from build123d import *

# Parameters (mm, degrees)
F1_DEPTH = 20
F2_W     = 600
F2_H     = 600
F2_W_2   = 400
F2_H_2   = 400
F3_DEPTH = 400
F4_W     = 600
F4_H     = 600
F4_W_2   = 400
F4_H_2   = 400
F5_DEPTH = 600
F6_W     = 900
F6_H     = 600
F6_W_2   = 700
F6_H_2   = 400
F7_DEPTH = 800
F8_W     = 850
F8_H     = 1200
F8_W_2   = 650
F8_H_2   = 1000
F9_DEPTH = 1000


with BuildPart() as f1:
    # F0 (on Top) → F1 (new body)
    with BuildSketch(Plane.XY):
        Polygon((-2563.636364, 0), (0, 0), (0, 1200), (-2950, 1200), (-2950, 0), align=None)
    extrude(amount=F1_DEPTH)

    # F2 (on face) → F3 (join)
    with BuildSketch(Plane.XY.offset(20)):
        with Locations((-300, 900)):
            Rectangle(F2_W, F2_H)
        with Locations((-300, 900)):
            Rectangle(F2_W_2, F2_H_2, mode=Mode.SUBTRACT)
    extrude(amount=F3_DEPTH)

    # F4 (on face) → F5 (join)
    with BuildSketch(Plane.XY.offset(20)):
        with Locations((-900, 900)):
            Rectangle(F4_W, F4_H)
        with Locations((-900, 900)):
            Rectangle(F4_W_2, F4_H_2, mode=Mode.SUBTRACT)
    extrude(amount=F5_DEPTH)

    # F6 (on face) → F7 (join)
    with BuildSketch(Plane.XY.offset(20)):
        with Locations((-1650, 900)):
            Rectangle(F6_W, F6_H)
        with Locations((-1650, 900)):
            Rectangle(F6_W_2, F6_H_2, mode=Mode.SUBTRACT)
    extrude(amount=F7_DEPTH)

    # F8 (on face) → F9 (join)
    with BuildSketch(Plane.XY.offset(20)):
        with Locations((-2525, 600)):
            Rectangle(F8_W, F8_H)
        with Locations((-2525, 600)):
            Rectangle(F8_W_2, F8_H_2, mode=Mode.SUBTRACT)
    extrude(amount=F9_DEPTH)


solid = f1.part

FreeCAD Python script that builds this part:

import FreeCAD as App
import Part
import Sketcher

V = App.Vector

doc = App.newDocument("Part")
params = doc.addObject("Spreadsheet::Sheet", "Params")
for row, (alias, value) in enumerate([
    ("sketch1_width", "2950 mm"),
    ("sketch1_height", "1200 mm"),
    ("pad1_length", "20 mm"),
    ("sketch2_width", "600 mm"),
    ("sketch2_width2", "400 mm"),
    ("pad2_length", "400 mm"),
    ("sketch3_width", "600 mm"),
    ("sketch3_width2", "400 mm"),
    ("pad3_length", "600 mm"),
    ("sketch4_width", "900 mm"),
    ("sketch4_width2", "700 mm"),
    ("sketch4_height", "600 mm"),
    ("sketch4_height2", "400 mm"),
    ("pad4_length", "800 mm"),
    ("sketch5_width", "850 mm"),
    ("sketch5_width2", "650 mm"),
    ("sketch5_height", "1200 mm"),
    ("sketch5_height2", "1000 mm"),
    ("pad5_length", "1000 mm"),
], start=1):
    params.set(f"A{row}", alias)
    params.set(f"B{row}", "=" + value)
    params.setAlias(f"B{row}", alias)

body = doc.addObject("PartDesign::Body", "Body")

# Sketch on XY plane
sketch1 = body.newObject("Sketcher::SketchObject", "Sketch")
sketch1.AttachmentSupport = (doc.getObject("XY_Plane"), [""])
sketch1.MapMode = "FlatFace"
sketch1.addGeometry(Part.LineSegment(V(0, 0, 0), V(0, 1200, 0)), False)
sketch1.addGeometry(Part.LineSegment(V(0, 1200, 0), V(-2950, 1200, 0)), False)
sketch1.addGeometry(Part.LineSegment(V(-2950, 1200, 0), V(-2950, 0, 0)), False)
sketch1.addGeometry(Part.LineSegment(V(-2950, 0, 0), V(0, 0, 0)), False)
sketch1.addConstraint(Sketcher.Constraint("Coincident", 0, 2, 1, 1))
sketch1.addConstraint(Sketcher.Constraint("Coincident", 1, 2, 2, 1))
sketch1.addConstraint(Sketcher.Constraint("Coincident", 2, 2, 3, 1))
sketch1.addConstraint(Sketcher.Constraint("Coincident", 3, 2, 0, 1))
sketch1.addConstraint(Sketcher.Constraint("Vertical", 0))
sketch1.addConstraint(Sketcher.Constraint("Horizontal", 1))
sketch1.addConstraint(Sketcher.Constraint("Vertical", 2))
sketch1.addConstraint(Sketcher.Constraint("Horizontal", 3))
sketch1.addConstraint(Sketcher.Constraint("Coincident", 3, 2, -1, 1))
sketch1.addConstraint(Sketcher.Constraint("DistanceX", 1, 2, 1, 1, 2950.0))
sketch1.addConstraint(Sketcher.Constraint("DistanceY", 0, 1, 0, 2, 1200.0))
sketch1.setExpression("Constraints[9]", "Params.sketch1_width")
sketch1.setExpression("Constraints[10]", "Params.sketch1_height")
pad1 = body.newObject("PartDesign::Pad", "Pad")
pad1.Profile = sketch1
pad1.setExpression("Length", "Params.pad1_length")

# Sketch on XY plane
sketch2 = body.newObject("Sketcher::SketchObject", "Sketch001")
sketch2.AttachmentSupport = (doc.getObject("XY_Plane"), [""])
sketch2.MapMode = "FlatFace"
sketch2.AttachmentOffset = App.Placement(V(0, 0, 20), App.Rotation())
sketch2.addGeometry(Part.LineSegment(V(-600, 1200, 0), V(-600, 600, 0)), False)
sketch2.addGeometry(Part.LineSegment(V(-600, 600, 0), V(0, 600, 0)), False)
sketch2.addGeometry(Part.LineSegment(V(0, 600, 0), V(0, 1200, 0)), False)
sketch2.addGeometry(Part.LineSegment(V(0, 1200, 0), V(-600, 1200, 0)), False)
sketch2.addGeometry(Part.LineSegment(V(-100, 700, 0), V(-500, 700, 0)), False)
sketch2.addGeometry(Part.LineSegment(V(-500, 700, 0), V(-500, 1100, 0)), False)
sketch2.addGeometry(Part.LineSegment(V(-500, 1100, 0), V(-100, 1100, 0)), False)
sketch2.addGeometry(Part.LineSegment(V(-100, 1100, 0), V(-100, 700, 0)), False)
sketch2.addConstraint(Sketcher.Constraint("Coincident", 0, 2, 1, 1))
sketch2.addConstraint(Sketcher.Constraint("Coincident", 1, 2, 2, 1))
sketch2.addConstraint(Sketcher.Constraint("Coincident", 2, 2, 3, 1))
sketch2.addConstraint(Sketcher.Constraint("Coincident", 3, 2, 0, 1))
sketch2.addConstraint(Sketcher.Constraint("Coincident", 4, 2, 5, 1))
sketch2.addConstraint(Sketcher.Constraint("Coincident", 5, 2, 6, 1))
sketch2.addConstraint(Sketcher.Constraint("Coincident", 6, 2, 7, 1))
sketch2.addConstraint(Sketcher.Constraint("Coincident", 7, 2, 4, 1))
sketch2.addConstraint(Sketcher.Constraint("Vertical", 0))
sketch2.addConstraint(Sketcher.Constraint("Horizontal", 1))
sketch2.addConstraint(Sketcher.Constraint("Vertical", 2))
sketch2.addConstraint(Sketcher.Constraint("Horizontal", 3))
sketch2.addConstraint(Sketcher.Constraint("Horizontal", 4))
sketch2.addConstraint(Sketcher.Constraint("Vertical", 5))
sketch2.addConstraint(Sketcher.Constraint("Horizontal", 6))
sketch2.addConstraint(Sketcher.Constraint("Vertical", 7))
sketch2.addConstraint(Sketcher.Constraint("PointOnObject", 1, 2, -2))
sketch2.addConstraint(Sketcher.Constraint("Equal", 3, 0))
sketch2.addConstraint(Sketcher.Constraint("Equal", 6, 5))
sketch2.addConstraint(Sketcher.Constraint("DistanceX", 1, 1, 1, 2, 600.0))
sketch2.addConstraint(Sketcher.Constraint("DistanceX", 4, 2, 4, 1, 400.0))
sketch2.addConstraint(Sketcher.Constraint("DistanceY", -1, 1, 0, 2, 600.0))
sketch2.addConstraint(Sketcher.Constraint("DistanceX", 4, 2, -1, 1, 500.0))
sketch2.addConstraint(Sketcher.Constraint("DistanceY", -1, 1, 4, 2, 700.0))
sketch2.setExpression("Constraints[19]", "Params.sketch2_width")
sketch2.setExpression("Constraints[20]", "Params.sketch2_width2")
pad2 = body.newObject("PartDesign::Pad", "Pad001")
pad2.Profile = sketch2
pad2.setExpression("Length", "Params.pad2_length")

# Sketch on XY plane
sketch3 = body.newObject("Sketcher::SketchObject", "Sketch002")
sketch3.AttachmentSupport = (doc.getObject("XY_Plane"), [""])
sketch3.MapMode = "FlatFace"
sketch3.AttachmentOffset = App.Placement(V(0, 0, 20), App.Rotation())
sketch3.addGeometry(Part.LineSegment(V(-1200, 1200, 0), V(-1200, 600, 0)), False)
sketch3.addGeometry(Part.LineSegment(V(-1200, 600, 0), V(-600, 600, 0)), False)
sketch3.addGeometry(Part.LineSegment(V(-600, 600, 0), V(-600, 1200, 0)), False)
sketch3.addGeometry(Part.LineSegment(V(-600, 1200, 0), V(-1200, 1200, 0)), False)
sketch3.addGeometry(Part.LineSegment(V(-700, 700, 0), V(-1100, 700, 0)), False)
sketch3.addGeometry(Part.LineSegment(V(-1100, 700, 0), V(-1100, 1100, 0)), False)
sketch3.addGeometry(Part.LineSegment(V(-1100, 1100, 0), V(-700, 1100, 0)), False)
sketch3.addGeometry(Part.LineSegment(V(-700, 1100, 0), V(-700, 700, 0)), False)
sketch3.addConstraint(Sketcher.Constraint("Coincident", 0, 2, 1, 1))
sketch3.addConstraint(Sketcher.Constraint("Coincident", 1, 2, 2, 1))
sketch3.addConstraint(Sketcher.Constraint("Coincident", 2, 2, 3, 1))
sketch3.addConstraint(Sketcher.Constraint("Coincident", 3, 2, 0, 1))
sketch3.addConstraint(Sketcher.Constraint("Coincident", 4, 2, 5, 1))
sketch3.addConstraint(Sketcher.Constraint("Coincident", 5, 2, 6, 1))
sketch3.addConstraint(Sketcher.Constraint("Coincident", 6, 2, 7, 1))
sketch3.addConstraint(Sketcher.Constraint("Coincident", 7, 2, 4, 1))
sketch3.addConstraint(Sketcher.Constraint("Vertical", 0))
sketch3.addConstraint(Sketcher.Constraint("Horizontal", 1))
sketch3.addConstraint(Sketcher.Constraint("Vertical", 2))
sketch3.addConstraint(Sketcher.Constraint("Horizontal", 3))
sketch3.addConstraint(Sketcher.Constraint("Horizontal", 4))
sketch3.addConstraint(Sketcher.Constraint("Vertical", 5))
sketch3.addConstraint(Sketcher.Constraint("Horizontal", 6))
sketch3.addConstraint(Sketcher.Constraint("Vertical", 7))
sketch3.addConstraint(Sketcher.Constraint("Equal", 3, 0))
sketch3.addConstraint(Sketcher.Constraint("Equal", 6, 5))
sketch3.addConstraint(Sketcher.Constraint("DistanceX", 1, 1, 1, 2, 600.0))
sketch3.addConstraint(Sketcher.Constraint("DistanceX", 4, 2, 4, 1, 400.0))
sketch3.addConstraint(Sketcher.Constraint("DistanceX", 0, 2, -1, 1, 1200.0))
sketch3.addConstraint(Sketcher.Constraint("DistanceY", -1, 1, 0, 2, 600.0))
sketch3.addConstraint(Sketcher.Constraint("DistanceX", 4, 2, -1, 1, 1100.0))
sketch3.addConstraint(Sketcher.Constraint("DistanceY", -1, 1, 4, 2, 700.0))
sketch3.setExpression("Constraints[18]", "Params.sketch3_width")
sketch3.setExpression("Constraints[19]", "Params.sketch3_width2")
pad3 = body.newObject("PartDesign::Pad", "Pad002")
pad3.Profile = sketch3
pad3.setExpression("Length", "Params.pad3_length")

# Sketch on XY plane
sketch4 = body.newObject("Sketcher::SketchObject", "Sketch003")
sketch4.AttachmentSupport = (doc.getObject("XY_Plane"), [""])
sketch4.MapMode = "FlatFace"
sketch4.AttachmentOffset = App.Placement(V(0, 0, 20), App.Rotation())
sketch4.addGeometry(Part.LineSegment(V(-2100, 1200, 0), V(-2100, 600, 0)), False)
sketch4.addGeometry(Part.LineSegment(V(-2100, 600, 0), V(-1200, 600, 0)), False)
sketch4.addGeometry(Part.LineSegment(V(-1200, 600, 0), V(-1200, 1200, 0)), False)
sketch4.addGeometry(Part.LineSegment(V(-1200, 1200, 0), V(-2100, 1200, 0)), False)
sketch4.addGeometry(Part.LineSegment(V(-1300, 700, 0), V(-2000, 700, 0)), False)
sketch4.addGeometry(Part.LineSegment(V(-2000, 700, 0), V(-2000, 1100, 0)), False)
sketch4.addGeometry(Part.LineSegment(V(-2000, 1100, 0), V(-1300, 1100, 0)), False)
sketch4.addGeometry(Part.LineSegment(V(-1300, 1100, 0), V(-1300, 700, 0)), False)
sketch4.addConstraint(Sketcher.Constraint("Coincident", 0, 2, 1, 1))
sketch4.addConstraint(Sketcher.Constraint("Coincident", 1, 2, 2, 1))
sketch4.addConstraint(Sketcher.Constraint("Coincident", 2, 2, 3, 1))
sketch4.addConstraint(Sketcher.Constraint("Coincident", 3, 2, 0, 1))
sketch4.addConstraint(Sketcher.Constraint("Coincident", 4, 2, 5, 1))
sketch4.addConstraint(Sketcher.Constraint("Coincident", 5, 2, 6, 1))
sketch4.addConstraint(Sketcher.Constraint("Coincident", 6, 2, 7, 1))
sketch4.addConstraint(Sketcher.Constraint("Coincident", 7, 2, 4, 1))
sketch4.addConstraint(Sketcher.Constraint("Vertical", 0))
sketch4.addConstraint(Sketcher.Constraint("Horizontal", 1))
sketch4.addConstraint(Sketcher.Constraint("Vertical", 2))
sketch4.addConstraint(Sketcher.Constraint("Horizontal", 3))
sketch4.addConstraint(Sketcher.Constraint("Horizontal", 4))
sketch4.addConstraint(Sketcher.Constraint("Vertical", 5))
sketch4.addConstraint(Sketcher.Constraint("Horizontal", 6))
sketch4.addConstraint(Sketcher.Constraint("Vertical", 7))
sketch4.addConstraint(Sketcher.Constraint("DistanceX", 1, 1, 1, 2, 900.0))
sketch4.addConstraint(Sketcher.Constraint("DistanceX", 4, 2, 4, 1, 700.0))
sketch4.addConstraint(Sketcher.Constraint("DistanceY", 0, 2, 0, 1, 600.0))
sketch4.addConstraint(Sketcher.Constraint("DistanceY", 5, 1, 5, 2, 400.0))
sketch4.addConstraint(Sketcher.Constraint("DistanceX", 0, 2, -1, 1, 2100.0))
sketch4.addConstraint(Sketcher.Constraint("DistanceY", -1, 1, 0, 2, 600.0))
sketch4.addConstraint(Sketcher.Constraint("DistanceX", 4, 2, -1, 1, 2000.0))
sketch4.addConstraint(Sketcher.Constraint("DistanceY", -1, 1, 4, 2, 700.0))
sketch4.setExpression("Constraints[16]", "Params.sketch4_width")
sketch4.setExpression("Constraints[17]", "Params.sketch4_width2")
sketch4.setExpression("Constraints[18]", "Params.sketch4_height")
sketch4.setExpression("Constraints[19]", "Params.sketch4_height2")
pad4 = body.newObject("PartDesign::Pad", "Pad003")
pad4.Profile = sketch4
pad4.setExpression("Length", "Params.pad4_length")

# Sketch on XY plane
sketch5 = body.newObject("Sketcher::SketchObject", "Sketch004")
sketch5.AttachmentSupport = (doc.getObject("XY_Plane"), [""])
sketch5.MapMode = "FlatFace"
sketch5.AttachmentOffset = App.Placement(V(0, 0, 20), App.Rotation())
sketch5.addGeometry(Part.LineSegment(V(-2950, 1200, 0), V(-2950, 0, 0)), False)
sketch5.addGeometry(Part.LineSegment(V(-2950, 0, 0), V(-2100, 0, 0)), False)
sketch5.addGeometry(Part.LineSegment(V(-2100, 0, 0), V(-2100, 1200, 0)), False)
sketch5.addGeometry(Part.LineSegment(V(-2100, 1200, 0), V(-2950, 1200, 0)), False)
sketch5.addGeometry(Part.LineSegment(V(-2200, 100, 0), V(-2850, 100, 0)), False)
sketch5.addGeometry(Part.LineSegment(V(-2850, 100, 0), V(-2850, 1100, 0)), False)
sketch5.addGeometry(Part.LineSegment(V(-2850, 1100, 0), V(-2200, 1100, 0)), False)
sketch5.addGeometry(Part.LineSegment(V(-2200, 1100, 0), V(-2200, 100, 0)), False)
sketch5.addConstraint(Sketcher.Constraint("Coincident", 0, 2, 1, 1))
sketch5.addConstraint(Sketcher.Constraint("Coincident", 1, 2, 2, 1))
sketch5.addConstraint(Sketcher.Constraint("Coincident", 2, 2, 3, 1))
sketch5.addConstraint(Sketcher.Constraint("Coincident", 3, 2, 0, 1))
sketch5.addConstraint(Sketcher.Constraint("Coincident", 4, 2, 5, 1))
sketch5.addConstraint(Sketcher.Constraint("Coincident", 5, 2, 6, 1))
sketch5.addConstraint(Sketcher.Constraint("Coincident", 6, 2, 7, 1))
sketch5.addConstraint(Sketcher.Constraint("Coincident", 7, 2, 4, 1))
sketch5.addConstraint(Sketcher.Constraint("Vertical", 0))
sketch5.addConstraint(Sketcher.Constraint("Horizontal", 1))
sketch5.addConstraint(Sketcher.Constraint("Vertical", 2))
sketch5.addConstraint(Sketcher.Constraint("Horizontal", 3))
sketch5.addConstraint(Sketcher.Constraint("Horizontal", 4))
sketch5.addConstraint(Sketcher.Constraint("Vertical", 5))
sketch5.addConstraint(Sketcher.Constraint("Horizontal", 6))
sketch5.addConstraint(Sketcher.Constraint("Vertical", 7))
sketch5.addConstraint(Sketcher.Constraint("PointOnObject", 0, 2, -1))
sketch5.addConstraint(Sketcher.Constraint("DistanceX", 1, 1, 1, 2, 850.0))
sketch5.addConstraint(Sketcher.Constraint("DistanceX", 4, 2, 4, 1, 650.0))
sketch5.addConstraint(Sketcher.Constraint("DistanceY", 0, 2, 0, 1, 1200.0))
sketch5.addConstraint(Sketcher.Constraint("DistanceY", 5, 1, 5, 2, 1000.0))
sketch5.addConstraint(Sketcher.Constraint("DistanceX", 0, 2, -1, 1, 2950.0))
sketch5.addConstraint(Sketcher.Constraint("DistanceX", 4, 2, -1, 1, 2850.0))
sketch5.addConstraint(Sketcher.Constraint("DistanceY", -1, 1, 4, 2, 100.0))
sketch5.setExpression("Constraints[17]", "Params.sketch5_width")
sketch5.setExpression("Constraints[18]", "Params.sketch5_width2")
sketch5.setExpression("Constraints[19]", "Params.sketch5_height")
sketch5.setExpression("Constraints[20]", "Params.sketch5_height2")
pad5 = body.newObject("PartDesign::Pad", "Pad004")
pad5.Profile = sketch5
pad5.setExpression("Length", "Params.pad5_length")

doc.recompute()
